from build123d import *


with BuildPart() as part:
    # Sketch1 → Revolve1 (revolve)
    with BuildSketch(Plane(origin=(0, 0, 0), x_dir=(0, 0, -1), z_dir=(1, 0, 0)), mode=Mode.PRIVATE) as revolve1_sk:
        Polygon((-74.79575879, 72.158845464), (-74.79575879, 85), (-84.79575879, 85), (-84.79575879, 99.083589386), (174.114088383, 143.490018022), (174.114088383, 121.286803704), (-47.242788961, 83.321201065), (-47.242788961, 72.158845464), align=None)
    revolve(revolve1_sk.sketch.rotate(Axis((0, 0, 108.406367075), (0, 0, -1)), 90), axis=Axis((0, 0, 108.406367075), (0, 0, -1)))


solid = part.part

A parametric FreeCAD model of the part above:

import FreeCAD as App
import Part
import Sketcher

V = App.Vector


def add_polygon(sketch, points):
    """Adds a closed chain of lines whose ends are joined by coincident constraints."""
    first, n = sketch.GeometryCount, len(points)
    for a, b in zip(points, points[1:] + points[:1]):
        sketch.addGeometry(Part.LineSegment(App.Vector(*a, 0), App.Vector(*b, 0)), False)
    for i in range(n):
        sketch.addConstraint(Sketcher.Constraint("Coincident", first + i, 2, first + (i + 1) % n, 1))

doc = App.newDocument("Part")
body = doc.addObject("PartDesign::Body", "Body")

# Sketch on YZ plane
sketch1 = body.newObject("Sketcher::SketchObject", "Sketch")
sketch1.AttachmentSupport = (doc.getObject("YZ_Plane"), [""])
sketch1.MapMode = "FlatFace"
add_polygon(sketch1, [(85, 75), (72, 75), (72, 47), (83, 47), (121, -174), (143, -174), (99, 85), (85, 85)])  # lines 0-7
sketch1.addConstraint([
    Sketcher.Constraint("Horizontal", 0),
    Sketcher.Constraint("Vertical", 1),
    Sketcher.Constraint("Horizontal", 2),
    Sketcher.Constraint("Horizontal", 4),
    Sketcher.Constraint("Horizontal", 6),
    Sketcher.Constraint("Vertical", 7),
    Sketcher.Constraint("Parallel", 3, 5),
    Sketcher.Constraint("DistanceY", 7, 2, 7, 1, 10.0),
    Sketcher.Constraint("DistanceX", -1, 1, 6, 2, 85.0),
    Sketcher.Constraint("DistanceX", 6, 2, 6, 1, 14.083589),
    Sketcher.Constraint("DistanceY", 1, 2, 1, 1, 27.55297),
    Sketcher.Constraint("DistanceX", -1, 1, 2, 2, 83.321201),
    Sketcher.Constraint("Distance", 3, 224.589078),
    Sketcher.Constraint("DistanceX", 0, 2, 0, 1, 12.841155),
    Sketcher.Constraint("DistanceX", 4, 1, 4, 2, 22.203214),
    Sketcher.Constraint("DistanceY", -1, 1, 0, 2, 74.795759),
])
revolution = body.newObject("PartDesign::Revolution", "Revolution")
revolution.Profile = sketch1
revolution.ReferenceAxis = (sketch1, ["V_Axis"])
revolution.Angle = 360

doc.recompute()
